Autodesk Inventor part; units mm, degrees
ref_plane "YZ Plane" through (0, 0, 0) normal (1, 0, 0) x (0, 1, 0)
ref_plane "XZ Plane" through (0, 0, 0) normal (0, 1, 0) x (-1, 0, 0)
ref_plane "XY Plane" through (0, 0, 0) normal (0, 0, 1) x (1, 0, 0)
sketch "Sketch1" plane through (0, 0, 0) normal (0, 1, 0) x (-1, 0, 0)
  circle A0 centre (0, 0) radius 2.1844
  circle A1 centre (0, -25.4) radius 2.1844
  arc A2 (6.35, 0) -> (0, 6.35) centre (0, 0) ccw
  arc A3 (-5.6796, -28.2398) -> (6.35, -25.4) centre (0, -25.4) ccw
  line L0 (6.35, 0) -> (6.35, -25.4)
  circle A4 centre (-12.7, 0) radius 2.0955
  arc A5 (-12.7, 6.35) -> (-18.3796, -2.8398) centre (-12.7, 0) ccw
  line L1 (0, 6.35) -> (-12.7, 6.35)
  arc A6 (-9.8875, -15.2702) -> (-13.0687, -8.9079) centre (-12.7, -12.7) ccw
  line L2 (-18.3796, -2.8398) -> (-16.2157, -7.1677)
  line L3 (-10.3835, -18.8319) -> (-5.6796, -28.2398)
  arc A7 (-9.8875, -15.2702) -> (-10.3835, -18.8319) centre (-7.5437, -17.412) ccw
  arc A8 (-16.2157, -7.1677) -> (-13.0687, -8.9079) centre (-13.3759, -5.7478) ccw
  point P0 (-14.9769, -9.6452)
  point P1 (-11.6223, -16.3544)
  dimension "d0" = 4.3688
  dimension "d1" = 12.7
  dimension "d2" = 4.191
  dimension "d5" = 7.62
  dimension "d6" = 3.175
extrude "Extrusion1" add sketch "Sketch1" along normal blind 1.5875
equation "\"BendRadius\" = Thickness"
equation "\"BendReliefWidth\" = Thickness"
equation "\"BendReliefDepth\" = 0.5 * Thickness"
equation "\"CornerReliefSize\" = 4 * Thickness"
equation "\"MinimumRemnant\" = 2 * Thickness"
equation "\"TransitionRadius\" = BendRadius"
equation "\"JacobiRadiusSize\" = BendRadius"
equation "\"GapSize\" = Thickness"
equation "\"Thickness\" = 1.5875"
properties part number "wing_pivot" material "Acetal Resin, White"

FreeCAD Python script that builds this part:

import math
import FreeCAD as App
import Part
import Sketcher
Q = App.Units.Quantity

doc = App.newDocument("Part")
body = doc.addObject("PartDesign::Body", "Body")

sketch1 = doc.addObject("Sketcher::SketchObject", "Sketch")
body.addObject(sketch1)
sketch1.AttachmentSupport = (doc.XZ_Plane, [""])
sketch1.MapMode = "FlatFace"
sketch1.addGeometry([
    Part.LineSegment(App.Vector(-6.3, -25.4, 0), App.Vector(-6.3, 0, 0)),
    Part.ArcOfCircle(Part.Circle(App.Vector(0, 0, 0), App.Vector(0, 0, 1), 6.3), math.radians(90), math.radians(180)),
    Part.LineSegment(App.Vector(0, 6.3, 0), App.Vector(12.7, 6.3, 0)),
    Part.ArcOfCircle(Part.Circle(App.Vector(12.7, 0, 0), App.Vector(0, 0, 1), 6.3), math.radians(-27), math.radians(90)),
    Part.LineSegment(App.Vector(18.4, -2.8, 0), App.Vector(16.2, -7.2, 0)),
    Part.ArcOfCircle(Part.Circle(App.Vector(13.4, -5.7, 0), App.Vector(0, 0, 1), 3.2), math.radians(-96), math.radians(-27)),
    Part.ArcOfCircle(Part.Circle(App.Vector(12.7, -12.7, 0), App.Vector(0, 0, 1), 3.8), math.radians(84), math.radians(222)),
    Part.ArcOfCircle(Part.Circle(App.Vector(7.5, -17.4, 0), App.Vector(0, 0, 1), 3.2), math.radians(-27), math.radians(42)),
    Part.LineSegment(App.Vector(10.4, -18.8, 0), App.Vector(5.7, -28.2, 0)),
    Part.ArcOfCircle(Part.Circle(App.Vector(0, -25.4, 0), App.Vector(0, 0, 1), 6.3), math.radians(180), math.radians(333)),
    Part.Circle(App.Vector(0, -25.4, 0), App.Vector(0, 0, 1), 2.2),
    Part.Circle(App.Vector(12.7, 0, 0), App.Vector(0, 0, 1), 2.1),
    Part.Circle(App.Vector(0, 0, 0), App.Vector(0, 0, 1), 2.2),
], False)
sketch1.addConstraint([
    Sketcher.Constraint("Tangent", 0, 2, 1, 2),
    Sketcher.Constraint("Tangent", 1, 1, 2, 1),
    Sketcher.Constraint("Tangent", 2, 2, 3, 2),
    Sketcher.Constraint("Tangent", 3, 1, 4, 1),
    Sketcher.Constraint("Tangent", 4, 2, 5, 2),
    Sketcher.Constraint("Tangent", 5, 1, 6, 1),
    Sketcher.Constraint("Tangent", 6, 2, 7, 2),
    Sketcher.Constraint("Tangent", 7, 1, 8, 1),
    Sketcher.Constraint("Tangent", 8, 2, 9, 2),
    Sketcher.Constraint("Tangent", 9, 1, 0, 1),
    Sketcher.Constraint("Vertical", 0),
    Sketcher.Constraint("Horizontal", 2),
    Sketcher.Constraint("Coincident", 1, 3, -1, 1),
    Sketcher.Constraint("Coincident", 12, 3, -1, 1),
    Sketcher.Constraint("Coincident", 10, 3, 9, 3),
    Sketcher.Constraint("Coincident", 11, 3, 3, 3),
    Sketcher.Constraint("Equal", 1, 3),
    Sketcher.Constraint("Equal", 5, 7),
    Sketcher.Constraint("Equal", 3, 9),
    Sketcher.Constraint("Equal", 10, 12),
    Sketcher.Constraint("Parallel", 4, 8),
    Sketcher.Constraint("Vertical", 3, 3, 6, 3),
    Sketcher.Constraint("Radius", 1, Q("0.25 in")),
    Sketcher.Constraint("Radius", 6, Q("0.15 in")),
    Sketcher.Constraint("Diameter", 10, Q("0.172 in")),
    Sketcher.Constraint("Diameter", 11, Q("0.165 in")),
    Sketcher.Constraint("DistanceX", 2, 1, 2, 2, Q("0.5 in")),
    Sketcher.Constraint("Radius", 5, Q("0.125 in")),
    Sketcher.Constraint("DistanceY", 6, 3, -1, 1, Q("0.5 in")),
    Sketcher.Constraint("DistanceY", 9, 3, 6, 3, Q("0.5 in")),
    Sketcher.Constraint("DistanceX", -1, 1, 7, 3, Q("0.297 in")),
])
pad1 = doc.addObject("PartDesign::Pad", "Pad")
body.addObject(pad1)
pad1.Profile = sketch1
pad1.Length = Q("0.0625 in")
pad1.Reversed = True

doc.recompute()
